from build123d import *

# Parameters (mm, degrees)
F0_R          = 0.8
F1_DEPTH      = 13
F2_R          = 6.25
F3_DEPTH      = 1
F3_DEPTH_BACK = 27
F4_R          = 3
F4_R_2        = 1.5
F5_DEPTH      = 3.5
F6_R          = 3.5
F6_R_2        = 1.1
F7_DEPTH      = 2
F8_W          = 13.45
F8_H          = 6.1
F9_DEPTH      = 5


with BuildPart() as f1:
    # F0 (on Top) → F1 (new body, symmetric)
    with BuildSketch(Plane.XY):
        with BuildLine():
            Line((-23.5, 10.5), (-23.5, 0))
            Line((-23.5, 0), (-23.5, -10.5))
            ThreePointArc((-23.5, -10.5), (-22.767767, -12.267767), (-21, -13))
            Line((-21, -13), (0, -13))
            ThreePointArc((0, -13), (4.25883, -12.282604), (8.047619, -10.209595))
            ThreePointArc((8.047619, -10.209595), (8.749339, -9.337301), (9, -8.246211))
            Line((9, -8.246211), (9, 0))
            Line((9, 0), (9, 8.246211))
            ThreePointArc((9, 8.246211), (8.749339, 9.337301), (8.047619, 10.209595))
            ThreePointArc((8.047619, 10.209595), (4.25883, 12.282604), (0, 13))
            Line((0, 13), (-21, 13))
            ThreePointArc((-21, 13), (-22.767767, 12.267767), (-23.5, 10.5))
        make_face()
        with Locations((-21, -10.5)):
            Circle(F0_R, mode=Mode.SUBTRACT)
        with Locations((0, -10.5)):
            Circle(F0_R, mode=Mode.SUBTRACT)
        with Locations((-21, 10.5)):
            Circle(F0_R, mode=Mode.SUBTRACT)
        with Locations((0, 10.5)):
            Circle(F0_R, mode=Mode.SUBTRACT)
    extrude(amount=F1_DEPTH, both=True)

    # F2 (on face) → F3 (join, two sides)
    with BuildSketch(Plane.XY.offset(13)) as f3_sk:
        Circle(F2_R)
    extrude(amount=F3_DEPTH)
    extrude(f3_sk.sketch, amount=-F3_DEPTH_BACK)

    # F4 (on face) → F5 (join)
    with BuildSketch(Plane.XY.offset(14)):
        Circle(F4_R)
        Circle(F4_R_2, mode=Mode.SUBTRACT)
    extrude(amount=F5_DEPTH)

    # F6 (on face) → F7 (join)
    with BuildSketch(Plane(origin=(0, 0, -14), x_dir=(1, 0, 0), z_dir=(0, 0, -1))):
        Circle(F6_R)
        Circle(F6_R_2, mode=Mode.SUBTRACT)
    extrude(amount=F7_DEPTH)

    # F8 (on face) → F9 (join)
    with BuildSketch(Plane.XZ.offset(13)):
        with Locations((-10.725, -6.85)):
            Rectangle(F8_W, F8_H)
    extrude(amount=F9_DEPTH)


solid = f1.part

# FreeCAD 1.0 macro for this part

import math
import FreeCAD as App
import Part
import Sketcher
Q = App.Units.Quantity


def add_polygon(sketch, points):
    """Adds a closed chain of lines whose ends are joined by coincident constraints."""
    first, n = sketch.GeometryCount, len(points)
    for a, b in zip(points, points[1:] + points[:1]):
        sketch.addGeometry(Part.LineSegment(App.Vector(*a, 0), App.Vector(*b, 0)), False)
    for i in range(n):
        sketch.addConstraint(Sketcher.Constraint("Coincident", first + i, 2, first + (i + 1) % n, 1))

doc = App.newDocument("Part")
body = doc.addObject("PartDesign::Body", "Body")

# Sketch on XY plane
sketch1 = body.newObject("Sketcher::SketchObject", "Sketch")
sketch1.AttachmentSupport = (doc.getObject("XY_Plane"), [""])
sketch1.MapMode = "FlatFace"
sketch1.addGeometry([
    Part.LineSegment(App.Vector(-23.5, 10.5, 0), App.Vector(-23.5, -10.5, 0)),  # 0
    Part.ArcOfCircle(Part.Circle(App.Vector(-21, -10.5, 0), App.Vector(0, 0, 1), 2.5), math.radians(180), math.radians(270)),  # 1
    Part.LineSegment(App.Vector(-21, -13, 0), App.Vector(0, -13, 0)),  # 2
    Part.ArcOfCircle(Part.Circle(App.Vector(0, 0, 0), App.Vector(0, 0, 1), 13), math.radians(-90), math.radians(-52)),  # 3
    Part.ArcOfCircle(Part.Circle(App.Vector(6.5, -8.2, 0), App.Vector(0, 0, 1), 2.5), math.radians(-52), math.radians(0)),  # 4
    Part.LineSegment(App.Vector(9, -8.2, 0), App.Vector(9, 8.2, 0)),  # 5
    Part.ArcOfCircle(Part.Circle(App.Vector(6.5, 8.2, 0), App.Vector(0, 0, 1), 2.5), math.radians(0), math.radians(52)),  # 6
    Part.ArcOfCircle(Part.Circle(App.Vector(0, 0, 0), App.Vector(0, 0, 1), 13), math.radians(52), math.radians(90)),  # 7
    Part.LineSegment(App.Vector(0, 13, 0), App.Vector(-21, 13, 0)),  # 8
    Part.ArcOfCircle(Part.Circle(App.Vector(-21, 10.5, 0), App.Vector(0, 0, 1), 2.5), math.radians(90), math.radians(180)),  # 9
    Part.Circle(App.Vector(-21, -10.5, 0), App.Vector(0, 0, 1), 0.8),  # 10
    Part.Circle(App.Vector(0, -10.5, 0), App.Vector(0, 0, 1), 0.8),  # 11
    Part.Circle(App.Vector(-21, 10.5, 0), App.Vector(0, 0, 1), 0.8),  # 12
    Part.Circle(App.Vector(0, 10.5, 0), App.Vector(0, 0, 1), 0.8),  # 13
], False)
sketch1.addConstraint([
    Sketcher.Constraint("Tangent", 0, 2, 1, 1),
    Sketcher.Constraint("Tangent", 1, 2, 2, 1),
    Sketcher.Constraint("Tangent", 2, 2, 3, 1),
    Sketcher.Constraint("Tangent", 3, 2, 4, 1),
    Sketcher.Constraint("Tangent", 4, 2, 5, 1),
    Sketcher.Constraint("Tangent", 5, 2, 6, 1),
    Sketcher.Constraint("Tangent", 6, 2, 7, 1),
    Sketcher.Constraint("Tangent", 7, 2, 8, 1),
    Sketcher.Constraint("Tangent", 8, 2, 9, 1),
    Sketcher.Constraint("Tangent", 9, 2, 0, 1),
    Sketcher.Constraint("Vertical", 0),
    Sketcher.Constraint("Horizontal", 2),
    Sketcher.Constraint("Vertical", 5),
    Sketcher.Constraint("Horizontal", 8),
    Sketcher.Constraint("Coincident", 3, 3, -1, 1),
    Sketcher.Constraint("Coincident", 7, 3, -1, 1),
    Sketcher.Constraint("Coincident", 10, 3, 1, 3),
    Sketcher.Constraint("Coincident", 12, 3, 9, 3),
    Sketcher.Constraint("Equal", 4, 6),
    Sketcher.Constraint("Equal", 3, 7),
    Sketcher.Constraint("Equal", 1, 9),
    Sketcher.Constraint("Equal", 10, 11),
    Sketcher.Constraint("Equal", 11, 12),
    Sketcher.Constraint("Equal", 12, 13),
    Sketcher.Constraint("Symmetric", 11, 3, 13, 3, -1, 1),
    Sketcher.Constraint("PointOnObject", 11, 3, -2),
    Sketcher.Constraint("Horizontal", 10, 3, 11, 3),
    Sketcher.Constraint("Equal", 8, 0),
    Sketcher.Constraint("Diameter", 10, Q("1.6 mm")),
    Sketcher.Constraint("Radius", 1, Q("2.5 mm")),
    Sketcher.Constraint("DistanceX", 2, 1, 2, 2, Q("21 mm")),
    Sketcher.Constraint("DistanceX", -1, 1, 4, 2, Q("9 mm")),
    Sketcher.Constraint("Radius", 4, Q("2.499995 mm")),
])
pad1 = body.newObject("PartDesign::Pad", "Pad")
pad1.Profile = sketch1
pad1.Length = 26
pad1.Midplane = True

# Sketch on XY plane
sketch2 = body.newObject("Sketcher::SketchObject", "Sketch001")
sketch2.AttachmentSupport = (doc.getObject("XY_Plane"), [""])
sketch2.MapMode = "FlatFace"
sketch2.AttachmentOffset = App.Placement(App.Vector(0, 0, 13), App.Rotation())
sketch2.addGeometry(Part.Circle(App.Vector(0, 0, 0), App.Vector(0, 0, 1), 6), False)
sketch2.addConstraint([
    Sketcher.Constraint("Coincident", 0, 3, -1, 1),
    Sketcher.Constraint("Diameter", 0, Q("12.5 mm")),
])
pad2 = body.newObject("PartDesign::Pad", "Pad001")
pad2.Profile = sketch2
pad2.Type = "TwoLengths"
pad2.Length = 1
pad2.Length2 = 27

# Sketch on XY plane
sketch3 = body.newObject("Sketcher::SketchObject", "Sketch002")
sketch3.AttachmentSupport = (doc.getObject("XY_Plane"), [""])
sketch3.MapMode = "FlatFace"
sketch3.AttachmentOffset = App.Placement(App.Vector(0, 0, 14), App.Rotation())
sketch3.addGeometry([
    Part.Circle(App.Vector(0, 0, 0), App.Vector(0, 0, 1), 3),
    Part.Circle(App.Vector(0, 0, 0), App.Vector(0, 0, 1), 1.5),
], False)
sketch3.addConstraint([
    Sketcher.Constraint("Coincident", 0, 3, -1, 1),
    Sketcher.Constraint("Coincident", 1, 3, -1, 1),
    Sketcher.Constraint("Diameter", 0, Q("6 mm")),
    Sketcher.Constraint("Diameter", 1, Q("3 mm")),
])
pad3 = body.newObject("PartDesign::Pad", "Pad002")
pad3.Profile = sketch3
pad3.Length = 3.5

# Sketch on XY plane
sketch4 = body.newObject("Sketcher::SketchObject", "Sketch003")
sketch4.AttachmentSupport = (doc.getObject("XY_Plane"), [""])
sketch4.MapMode = "FlatFace"
sketch4.AttachmentOffset = App.Placement(App.Vector(0, 0, -14), App.Rotation())
sketch4.addGeometry([
    Part.Circle(App.Vector(0, 0, 0), App.Vector(0, 0, 1), 3.5),
    Part.Circle(App.Vector(0, 0, 0), App.Vector(0, 0, 1), 1.1),
], False)
sketch4.addConstraint([
    Sketcher.Constraint("Coincident", 0, 3, -1, 1),
    Sketcher.Constraint("Coincident", 1, 3, -1, 1),
    Sketcher.Constraint("Diameter", 0, Q("7 mm")),
    Sketcher.Constraint("Diameter", 1, Q("2.2 mm")),
])
pad4 = body.newObject("PartDesign::Pad", "Pad003")
pad4.Profile = sketch4
pad4.Length = 2
pad4.Reversed = True

# Sketch on XZ plane
sketch5 = body.newObject("Sketcher::SketchObject", "Sketch004")
sketch5.AttachmentSupport = (doc.getObject("XZ_Plane"), [""])
sketch5.MapMode = "FlatFace"
sketch5.AttachmentOffset = App.Placement(App.Vector(0, 0, 13), App.Rotation())
add_polygon(sketch5, [(-17, -4), (-17, -10), (-4, -10), (-4, -4)])  # lines 0-3
sketch5.addConstraint([
    Sketcher.Constraint("Vertical", 0),
    Sketcher.Constraint("Horizontal", 1),
    Sketcher.Constraint("Vertical", 2),
    Sketcher.Constraint("Horizontal", 3),
    Sketcher.Constraint("DistanceY", 0, 2, 0, 1, Q("6.1 mm")),
    Sketcher.Constraint("DistanceX", 1, 2, -1, 1, Q("4 mm")),
    Sketcher.Constraint("DistanceX", 1, 1, 1, 2, Q("13.45 mm")),
    Sketcher.Constraint("DistanceY", 0, 2, -1, 1, Q("9.9 mm")),
])
pad5 = body.newObject("PartDesign::Pad", "Pad004")
pad5.Profile = sketch5
pad5.Length = 5

doc.recompute()
